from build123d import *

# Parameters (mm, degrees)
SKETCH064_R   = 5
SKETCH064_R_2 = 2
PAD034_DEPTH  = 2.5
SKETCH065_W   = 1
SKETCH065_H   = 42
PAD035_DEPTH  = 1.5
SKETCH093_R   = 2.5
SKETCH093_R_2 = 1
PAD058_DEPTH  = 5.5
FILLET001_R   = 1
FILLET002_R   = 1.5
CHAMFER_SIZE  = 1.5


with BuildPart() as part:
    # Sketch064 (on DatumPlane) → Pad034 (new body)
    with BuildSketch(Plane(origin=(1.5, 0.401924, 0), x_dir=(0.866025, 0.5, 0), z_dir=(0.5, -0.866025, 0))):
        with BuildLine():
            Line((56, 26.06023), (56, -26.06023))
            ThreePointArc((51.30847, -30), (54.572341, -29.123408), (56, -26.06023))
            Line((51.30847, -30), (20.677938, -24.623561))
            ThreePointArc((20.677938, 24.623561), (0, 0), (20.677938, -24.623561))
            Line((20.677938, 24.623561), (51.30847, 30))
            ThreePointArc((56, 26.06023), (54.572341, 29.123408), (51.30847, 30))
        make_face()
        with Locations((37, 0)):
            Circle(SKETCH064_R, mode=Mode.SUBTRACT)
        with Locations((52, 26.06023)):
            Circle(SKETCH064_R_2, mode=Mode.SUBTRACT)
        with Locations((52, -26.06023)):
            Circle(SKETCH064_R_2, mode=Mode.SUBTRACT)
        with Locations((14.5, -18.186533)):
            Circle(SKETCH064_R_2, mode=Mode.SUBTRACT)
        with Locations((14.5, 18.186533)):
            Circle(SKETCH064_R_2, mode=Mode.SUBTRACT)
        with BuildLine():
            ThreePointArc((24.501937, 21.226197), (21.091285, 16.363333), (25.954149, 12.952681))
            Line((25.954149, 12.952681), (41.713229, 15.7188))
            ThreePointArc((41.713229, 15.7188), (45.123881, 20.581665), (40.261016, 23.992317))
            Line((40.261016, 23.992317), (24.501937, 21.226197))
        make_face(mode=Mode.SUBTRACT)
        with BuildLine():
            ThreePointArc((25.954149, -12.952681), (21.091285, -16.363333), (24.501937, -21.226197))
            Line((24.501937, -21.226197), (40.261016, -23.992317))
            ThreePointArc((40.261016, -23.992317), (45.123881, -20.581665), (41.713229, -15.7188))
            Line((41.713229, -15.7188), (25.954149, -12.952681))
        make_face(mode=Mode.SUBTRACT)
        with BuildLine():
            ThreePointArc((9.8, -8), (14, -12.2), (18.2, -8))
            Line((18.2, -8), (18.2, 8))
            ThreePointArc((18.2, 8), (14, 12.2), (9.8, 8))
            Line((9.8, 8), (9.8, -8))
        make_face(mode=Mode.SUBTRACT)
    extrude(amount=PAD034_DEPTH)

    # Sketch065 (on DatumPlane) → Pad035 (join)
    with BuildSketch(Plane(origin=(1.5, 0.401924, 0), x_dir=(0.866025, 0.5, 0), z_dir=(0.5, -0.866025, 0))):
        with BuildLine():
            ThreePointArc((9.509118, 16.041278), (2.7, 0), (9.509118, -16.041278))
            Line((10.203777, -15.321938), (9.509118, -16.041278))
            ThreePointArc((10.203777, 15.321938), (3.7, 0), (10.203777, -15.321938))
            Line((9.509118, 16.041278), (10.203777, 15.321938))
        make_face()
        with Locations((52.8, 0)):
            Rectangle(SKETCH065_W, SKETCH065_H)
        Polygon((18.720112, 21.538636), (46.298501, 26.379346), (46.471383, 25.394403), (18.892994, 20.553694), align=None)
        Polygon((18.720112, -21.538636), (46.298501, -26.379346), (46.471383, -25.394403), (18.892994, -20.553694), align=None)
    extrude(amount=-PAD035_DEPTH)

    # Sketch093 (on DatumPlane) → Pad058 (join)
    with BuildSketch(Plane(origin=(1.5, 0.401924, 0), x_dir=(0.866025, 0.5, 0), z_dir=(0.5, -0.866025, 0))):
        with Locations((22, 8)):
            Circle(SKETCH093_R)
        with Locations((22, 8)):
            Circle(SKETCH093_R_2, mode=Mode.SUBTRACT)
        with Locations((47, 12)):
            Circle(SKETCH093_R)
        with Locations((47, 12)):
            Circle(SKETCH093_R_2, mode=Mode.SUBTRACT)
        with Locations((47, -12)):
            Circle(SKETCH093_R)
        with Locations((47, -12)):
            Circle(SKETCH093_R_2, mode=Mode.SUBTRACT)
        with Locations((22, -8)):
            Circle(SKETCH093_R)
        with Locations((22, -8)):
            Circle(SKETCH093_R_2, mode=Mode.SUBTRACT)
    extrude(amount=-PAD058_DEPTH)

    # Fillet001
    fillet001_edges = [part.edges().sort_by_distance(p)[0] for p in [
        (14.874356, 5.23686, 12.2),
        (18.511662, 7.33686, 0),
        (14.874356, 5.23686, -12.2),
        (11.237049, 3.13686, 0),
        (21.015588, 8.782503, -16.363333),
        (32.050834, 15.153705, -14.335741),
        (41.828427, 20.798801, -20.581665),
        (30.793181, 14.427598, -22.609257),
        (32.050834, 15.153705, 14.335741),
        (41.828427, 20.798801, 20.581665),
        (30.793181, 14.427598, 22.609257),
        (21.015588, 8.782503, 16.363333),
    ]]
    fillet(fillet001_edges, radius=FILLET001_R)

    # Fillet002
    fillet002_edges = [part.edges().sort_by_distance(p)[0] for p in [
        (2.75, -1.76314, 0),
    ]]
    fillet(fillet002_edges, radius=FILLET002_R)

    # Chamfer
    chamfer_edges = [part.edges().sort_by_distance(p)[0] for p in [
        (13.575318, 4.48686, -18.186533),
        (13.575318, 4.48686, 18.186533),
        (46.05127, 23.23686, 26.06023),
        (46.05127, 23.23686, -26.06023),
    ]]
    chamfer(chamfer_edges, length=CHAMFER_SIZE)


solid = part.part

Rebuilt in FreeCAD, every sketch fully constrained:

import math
import FreeCAD as App
import Part
import Sketcher
from FreeCAD import Vector
Q = App.Units.Quantity


def edges_at(feature, points):
    """Names of the edges that pass closest to the given points."""
    edges = feature.Shape.Edges
    near = lambda p: min(range(len(edges)), key=lambda i: edges[i].distToShape(Part.Vertex(*p))[0])
    return sorted({f"Edge{near(p) + 1}" for p in points})

doc = App.newDocument("Part")
body = doc.addObject("PartDesign::Body", "Body")

# Sketch on an angled plane
sketch1 = body.newObject("Sketcher::SketchObject", "Sketch")
sketch1.Placement = App.Placement(Vector(1.5, 0.401924, 0), App.Rotation(Vector(0.866025303, 0.500000175, 0), Vector(0, 0, 1), Vector(0.500000175, -0.866025303, 0), "ZXY"))
sketch1.addGeometry(Part.LineSegment(Vector(56, -26.1, 0), Vector(56, 26.1, 0)), False)
sketch1.addGeometry(Part.ArcOfCircle(Part.Circle(Vector(52, 26.1, 0), Vector(0, 0, 1), 4), math.radians(0), math.radians(100)), False)
sketch1.addGeometry(Part.LineSegment(Vector(51.3, 30, 0), Vector(20.7, 24.6, 0)), False)
sketch1.addGeometry(Part.ArcOfCircle(Part.Circle(Vector(25, 0, 0), Vector(0, 0, 1), 25), math.radians(100), math.radians(260)), False)
sketch1.addGeometry(Part.LineSegment(Vector(20.7, -24.6, 0), Vector(51.3, -30, 0)), False)
sketch1.addGeometry(Part.ArcOfCircle(Part.Circle(Vector(52, -26.1, 0), Vector(0, 0, 1), 4), math.radians(-100), math.radians(0)), False)
sketch1.addGeometry(Part.Circle(Vector(52, -26.1, 0), Vector(0, 0, 1), 2), False)
sketch1.addGeometry(Part.LineSegment(Vector(26, -13, 0), Vector(41.7, -15.7, 0)), False)
sketch1.addGeometry(Part.ArcOfCircle(Part.Circle(Vector(41, -19.9, 0), Vector(0, 0, 1), 4.2), math.radians(-100), math.radians(80)), False)
sketch1.addGeometry(Part.LineSegment(Vector(40.3, -24, 0), Vector(24.5, -21.2, 0)), False)
sketch1.addGeometry(Part.ArcOfCircle(Part.Circle(Vector(25.2, -17.1, 0), Vector(0, 0, 1), 4.2), math.radians(80), math.radians(260)), False)
sketch1.addGeometry(Part.Circle(Vector(14.5, -18.2, 0), Vector(0, 0, 1), 2), False)
sketch1.addGeometry(Part.Circle(Vector(37, 0, 0), Vector(0, 0, 1), 5), False)
sketch1.addGeometry(Part.Circle(Vector(52, 26.1, 0), Vector(0, 0, 1), 2), False)
sketch1.addGeometry(Part.LineSegment(Vector(24.5, 21.2, 0), Vector(40.3, 24, 0)), False)
sketch1.addGeometry(Part.ArcOfCircle(Part.Circle(Vector(41, 19.9, 0), Vector(0, 0, 1), 4.2), math.radians(-80), math.radians(100)), False)
sketch1.addGeometry(Part.LineSegment(Vector(41.7, 15.7, 0), Vector(26, 13, 0)), False)
sketch1.addGeometry(Part.ArcOfCircle(Part.Circle(Vector(25.2, 17.1, 0), Vector(0, 0, 1), 4.2), math.radians(100), math.radians(280)), False)
sketch1.addGeometry(Part.LineSegment(Vector(9.8, -8, 0), Vector(9.8, 8, 0)), False)
sketch1.addGeometry(Part.ArcOfCircle(Part.Circle(Vector(14, 8, 0), Vector(0, 0, 1), 4.2), math.radians(0), math.radians(180)), False)
sketch1.addGeometry(Part.LineSegment(Vector(18.2, 8, 0), Vector(18.2, -8, 0)), False)
sketch1.addGeometry(Part.ArcOfCircle(Part.Circle(Vector(14, -8, 0), Vector(0, 0, 1), 4.2), math.radians(180), math.radians(360)), False)
sketch1.addGeometry(Part.Circle(Vector(14.5, 18.2, 0), Vector(0, 0, 1), 2), False)
sketch1.addConstraint(Sketcher.Constraint("Tangent", 0, 2, 1, 1))
sketch1.addConstraint(Sketcher.Constraint("Tangent", 1, 2, 2, 1))
sketch1.addConstraint(Sketcher.Constraint("Tangent", 2, 2, 3, 1))
sketch1.addConstraint(Sketcher.Constraint("Tangent", 3, 2, 4, 1))
sketch1.addConstraint(Sketcher.Constraint("Tangent", 4, 2, 5, 1))
sketch1.addConstraint(Sketcher.Constraint("Tangent", 5, 2, 0, 1))
sketch1.addConstraint(Sketcher.Constraint("Tangent", 7, 2, 8, 2))
sketch1.addConstraint(Sketcher.Constraint("Tangent", 8, 1, 9, 1))
sketch1.addConstraint(Sketcher.Constraint("Tangent", 9, 2, 10, 2))
sketch1.addConstraint(Sketcher.Constraint("Tangent", 10, 1, 7, 1))
sketch1.addConstraint(Sketcher.Constraint("Tangent", 14, 2, 15, 2))
sketch1.addConstraint(Sketcher.Constraint("Tangent", 15, 1, 16, 1))
sketch1.addConstraint(Sketcher.Constraint("Tangent", 16, 2, 17, 2))
sketch1.addConstraint(Sketcher.Constraint("Tangent", 17, 1, 14, 1))
sketch1.addConstraint(Sketcher.Constraint("Tangent", 18, 2, 19, 2))
sketch1.addConstraint(Sketcher.Constraint("Tangent", 19, 1, 20, 1))
sketch1.addConstraint(Sketcher.Constraint("Tangent", 20, 2, 21, 2))
sketch1.addConstraint(Sketcher.Constraint("Tangent", 21, 1, 18, 1))
sketch1.addConstraint(Sketcher.Constraint("Vertical", 0))
sketch1.addConstraint(Sketcher.Constraint("Vertical", 18))
sketch1.addConstraint(Sketcher.Constraint("Vertical", 20))
sketch1.addConstraint(Sketcher.Constraint("Coincident", 6, 3, 5, 3))
sketch1.addConstraint(Sketcher.Constraint("Coincident", 13, 3, 1, 3))
sketch1.addConstraint(Sketcher.Constraint("Equal", 1, 5))
sketch1.addConstraint(Sketcher.Constraint("Equal", 8, 10))
sketch1.addConstraint(Sketcher.Constraint("Equal", 6, 11))
sketch1.addConstraint(Sketcher.Constraint("Equal", 11, 13))
sketch1.addConstraint(Sketcher.Constraint("Equal", 10, 15))
sketch1.addConstraint(Sketcher.Constraint("Equal", 15, 17))
sketch1.addConstraint(Sketcher.Constraint("Equal", 17, 19))
sketch1.addConstraint(Sketcher.Constraint("Equal", 13, 22))
sketch1.addConstraint(Sketcher.Constraint("Symmetric", 8, 3, 15, 3, -1))
sketch1.addConstraint(Sketcher.Constraint("Symmetric", 10, 3, 17, 3, -1))
sketch1.addConstraint(Sketcher.Constraint("Symmetric", 11, 3, 22, 3, -1))
sketch1.addConstraint(Sketcher.Constraint("Symmetric", 2, 2, 3, 2, -1))
sketch1.addConstraint(Sketcher.Constraint("PointOnObject", 12, 3, -1))
sketch1.addConstraint(Sketcher.Constraint("Parallel", 4, 7))
sketch1.addConstraint(Sketcher.Constraint("Diameter", 6, Q("4 mm")))
sketch1.addConstraint(Sketcher.Constraint("Diameter", 12, Q("10 mm")))
sketch1.addConstraint(Sketcher.Constraint("Radius", 1, Q("4.000001 mm")))
sketch1.addConstraint(Sketcher.Constraint("Radius", 3, Q("24.999999 mm")))
sketch1.addConstraint(Sketcher.Constraint("Radius", 8, Q("4.2 mm")))
sketch1.addConstraint(Sketcher.Constraint("DistanceY", 18, 1, 18, 2, Q("16 mm")))
sketch1.addConstraint(Sketcher.Constraint("Distance", 7, Q("16.000001 mm")))
sketch1.addConstraint(Sketcher.Constraint("DistanceX", -1, 1, 1, 3, Q("51.999999 mm")))
sketch1.addConstraint(Sketcher.Constraint("DistanceX", -1, 1, 3, 3, Q("24.999999 mm")))
sketch1.addConstraint(Sketcher.Constraint("DistanceX", -1, 1, 12, 3, Q("37 mm")))
sketch1.addConstraint(Sketcher.Constraint("DistanceX", -1, 1, 19, 3, Q("14 mm")))
sketch1.addConstraint(Sketcher.Constraint("DistanceY", -1, 1, 19, 3, Q("8 mm")))
sketch1.addConstraint(Sketcher.Constraint("DistanceY", -1, 1, 1, 2, Q("30 mm")))
sketch1.addConstraint(Sketcher.Constraint("DistanceX", -1, 1, 11, 3, Q("14.5 mm")))
sketch1.addConstraint(Sketcher.Constraint("DistanceX", 3, 2, 9, 2, Q("3.823999 mm")))
sketch1.addConstraint(Sketcher.Constraint("DistanceY", 7, 2, -1, 1, Q("15.7188 mm")))
sketch1.addConstraint(Sketcher.Constraint("DistanceY", 22, 3, 2, 2, Q("6.437028 mm")))
pad1 = body.newObject("PartDesign::Pad", "Pad")
pad1.Profile = sketch1
pad1.Length = 2.5

# Sketch on an angled plane
sketch2 = body.newObject("Sketcher::SketchObject", "Sketch001")
sketch2.Placement = App.Placement(Vector(1.5, 0.401924, 0), App.Rotation(Vector(0.866025303, 0.500000175, 0), Vector(0, 0, 1), Vector(0.500000175, -0.866025303, 0), "ZXY"))
sketch2.addGeometry(Part.ArcOfCircle(Part.Circle(Vector(25, 0, 0), Vector(0, 0, 1), 22.3), math.radians(134), math.radians(226)), False)
sketch2.addGeometry(Part.LineSegment(Vector(9.5, -16, 0), Vector(10.2, -15.3, 0)), False)
sketch2.addGeometry(Part.ArcOfCircle(Part.Circle(Vector(25, 0, 0), Vector(0, 0, 1), 21.3), math.radians(134), math.radians(226)), False)
sketch2.addGeometry(Part.LineSegment(Vector(10.2, 15.3, 0), Vector(9.5, 16, 0)), False)
sketch2.addGeometry(Part.LineSegment(Vector(52.3, 21, 0), Vector(52.3, -21, 0)), False)
sketch2.addGeometry(Part.LineSegment(Vector(52.3, -21, 0), Vector(53.3, -21, 0)), False)
sketch2.addGeometry(Part.LineSegment(Vector(53.3, -21, 0), Vector(53.3, 21, 0)), False)
sketch2.addGeometry(Part.LineSegment(Vector(53.3, 21, 0), Vector(52.3, 21, 0)), False)
sketch2.addGeometry(Part.LineSegment(Vector(46.3, 26.4, 0), Vector(18.7, 21.5, 0)), False)
sketch2.addGeometry(Part.LineSegment(Vector(18.7, 21.5, 0), Vector(18.9, 20.6, 0)), False)
sketch2.addGeometry(Part.LineSegment(Vector(18.9, 20.6, 0), Vector(46.5, 25.4, 0)), False)
sketch2.addGeometry(Part.LineSegment(Vector(46.5, 25.4, 0), Vector(46.3, 26.4, 0)), False)
sketch2.addGeometry(Part.LineSegment(Vector(18.7, -21.5, 0), Vector(46.3, -26.4, 0)), False)
sketch2.addGeometry(Part.LineSegment(Vector(46.3, -26.4, 0), Vector(46.5, -25.4, 0)), False)
sketch2.addGeometry(Part.LineSegment(Vector(46.5, -25.4, 0), Vector(18.9, -20.6, 0)), False)
sketch2.addGeometry(Part.LineSegment(Vector(18.9, -20.6, 0), Vector(18.7, -21.5, 0)), False)
sketch2.addConstraint(Sketcher.Constraint("Coincident", 0, 2, 1, 1))
sketch2.addConstraint(Sketcher.Constraint("Coincident", 1, 2, 2, 2))
sketch2.addConstraint(Sketcher.Constraint("Coincident", 2, 1, 3, 1))
sketch2.addConstraint(Sketcher.Constraint("Coincident", 3, 2, 0, 1))
sketch2.addConstraint(Sketcher.Constraint("Coincident", 4, 2, 5, 1))
sketch2.addConstraint(Sketcher.Constraint("Coincident", 5, 2, 6, 1))
sketch2.addConstraint(Sketcher.Constraint("Coincident", 6, 2, 7, 1))
sketch2.addConstraint(Sketcher.Constraint("Coincident", 7, 2, 4, 1))
sketch2.addConstraint(Sketcher.Constraint("Coincident", 8, 2, 9, 1))
sketch2.addConstraint(Sketcher.Constraint("Coincident", 9, 2, 10, 1))
sketch2.addConstraint(Sketcher.Constraint("Coincident", 10, 2, 11, 1))
sketch2.addConstraint(Sketcher.Constraint("Coincident", 11, 2, 8, 1))
sketch2.addConstraint(Sketcher.Constraint("Coincident", 12, 2, 13, 1))
sketch2.addConstraint(Sketcher.Constraint("Coincident", 13, 2, 14, 1))
sketch2.addConstraint(Sketcher.Constraint("Coincident", 14, 2, 15, 1))
sketch2.addConstraint(Sketcher.Constraint("Coincident", 15, 2, 12, 1))
sketch2.addConstraint(Sketcher.Constraint("Vertical", 4))
sketch2.addConstraint(Sketcher.Constraint("Horizontal", 5))
sketch2.addConstraint(Sketcher.Constraint("Vertical", 6))
sketch2.addConstraint(Sketcher.Constraint("Horizontal", 7))
sketch2.addConstraint(Sketcher.Constraint("Coincident", 2, 3, 0, 3))
sketch2.addConstraint(Sketcher.Constraint("Symmetric", 1, 2, 2, 1, -1))
sketch2.addConstraint(Sketcher.Constraint("Symmetric", 11, 2, 12, 2, -1))
sketch2.addConstraint(Sketcher.Constraint("Symmetric", 10, 2, 13, 2, -1))
sketch2.addConstraint(Sketcher.Constraint("Symmetric", 9, 2, 14, 2, -1))
sketch2.addConstraint(Sketcher.Constraint("Symmetric", 8, 2, 15, 2, -1))
sketch2.addConstraint(Sketcher.Constraint("Perpendicular", 8, 9))
sketch2.addConstraint(Sketcher.Constraint("Perpendicular", 9, 10))
sketch2.addConstraint(Sketcher.Constraint("Perpendicular", 10, 11))
sketch2.addConstraint(Sketcher.Constraint("Vertical", 0, 2, 3, 2))
sketch2.addConstraint(Sketcher.Constraint("Equal", 3, 9))
sketch2.addConstraint(Sketcher.Constraint("Radius", 0, Q("22.300002 mm")))
sketch2.addConstraint(Sketcher.Constraint("Radius", 2, Q("21.3 mm")))
sketch2.addConstraint(Sketcher.Constraint("DistanceX", 5, 1, 5, 2, Q("1 mm")))
sketch2.addConstraint(Sketcher.Constraint("DistanceY", 4, 2, 4, 1, Q("42 mm")))
sketch2.addConstraint(Sketcher.Constraint("Angle", 1, Q("45.999982 deg")))
sketch2.addConstraint(Sketcher.Constraint("Distance", 8, Q("28 mm")))
sketch2.addConstraint(Sketcher.Constraint("DistanceX", -1, 1, 0, 3, Q("25.000002 mm")))
sketch2.addConstraint(Sketcher.Constraint("DistanceY", 4, 2, -1, 1, Q("21 mm")))
sketch2.addConstraint(Sketcher.Constraint("DistanceX", -1, 1, 4, 2, Q("52.3 mm")))
sketch2.addConstraint(Sketcher.Constraint("DistanceX", -1, 1, 11, 2, Q("46.298501 mm")))
sketch2.addConstraint(Sketcher.Constraint("DistanceY", 2, 1, 8, 2, Q("6.216698 mm")))
sketch2.addConstraint(Sketcher.Constraint("DistanceX", -1, 1, 0, 2, Q("9.509118 mm")))
sketch2.addConstraint(Sketcher.Constraint("DistanceX", 8, 2, 0, 3, Q("6.27989 mm")))
pad2 = body.newObject("PartDesign::Pad", "Pad001")
pad2.Profile = sketch2
pad2.Length = 1.5
pad2.Reversed = True

# Sketch on an angled plane
sketch3 = body.newObject("Sketcher::SketchObject", "Sketch002")
sketch3.Placement = App.Placement(Vector(1.5, 0.401924, 0), App.Rotation(Vector(0.866025303, 0.500000175, 0), Vector(0, 0, 1), Vector(0.500000175, -0.866025303, 0), "ZXY"))
sketch3.addGeometry(Part.Circle(Vector(22, 8, 0), Vector(0, 0, 1), 2.5), False)
sketch3.addGeometry(Part.Circle(Vector(22, 8, 0), Vector(0, 0, 1), 1), False)
sketch3.addGeometry(Part.Circle(Vector(47, 12, 0), Vector(0, 0, 1), 2.5), False)
sketch3.addGeometry(Part.Circle(Vector(47, 12, 0), Vector(0, 0, 1), 1), False)
sketch3.addGeometry(Part.Circle(Vector(47, -12, 0), Vector(0, 0, 1), 2.5), False)
sketch3.addGeometry(Part.Circle(Vector(47, -12, 0), Vector(0, 0, 1), 1), False)
sketch3.addGeometry(Part.Circle(Vector(22, -8, 0), Vector(0, 0, 1), 2.5), False)
sketch3.addGeometry(Part.Circle(Vector(22, -8, 0), Vector(0, 0, 1), 1), False)
sketch3.addConstraint(Sketcher.Constraint("Coincident", 1, 3, 0, 3))
sketch3.addConstraint(Sketcher.Constraint("Coincident", 3, 3, 2, 3))
sketch3.addConstraint(Sketcher.Constraint("Coincident", 5, 3, 4, 3))
sketch3.addConstraint(Sketcher.Constraint("Coincident", 7, 3, 6, 3))
sketch3.addConstraint(Sketcher.Constraint("Equal", 0, 2))
sketch3.addConstraint(Sketcher.Constraint("Equal", 1, 3))
sketch3.addConstraint(Sketcher.Constraint("Equal", 2, 4))
sketch3.addConstraint(Sketcher.Constraint("Equal", 3, 5))
sketch3.addConstraint(Sketcher.Constraint("Equal", 4, 6))
sketch3.addConstraint(Sketcher.Constraint("Equal", 5, 7))
sketch3.addConstraint(Sketcher.Constraint("Symmetric", 2, 3, 4, 3, -1))
sketch3.addConstraint(Sketcher.Constraint("Symmetric", 0, 3, 6, 3, -1))
sketch3.addConstraint(Sketcher.Constraint("Diameter", 0, Q("5 mm")))
sketch3.addConstraint(Sketcher.Constraint("Diameter", 1, Q("2 mm")))
sketch3.addConstraint(Sketcher.Constraint("DistanceX", -1, 1, 0, 3, Q("22 mm")))
sketch3.addConstraint(Sketcher.Constraint("DistanceY", -1, 1, 0, 3, Q("8 mm")))
sketch3.addConstraint(Sketcher.Constraint("DistanceX", -1, 1, 2, 3, Q("47 mm")))
sketch3.addConstraint(Sketcher.Constraint("DistanceY", -1, 1, 2, 3, Q("12 mm")))
pad3 = body.newObject("PartDesign::Pad", "Pad002")
pad3.Profile = sketch3
pad3.Length = 5.5
pad3.Reversed = True
doc.recompute()

fillet = body.newObject("PartDesign::Fillet", "Fillet")
fillet.Base = (pad3, edges_at(pad3, [
    (14.874, 5.237, 12.2),
    (18.512, 7.337, 0),
    (14.874, 5.237, -12.2),
    (11.237, 3.137, 0),
    (21.016, 8.783, -16.363),
    (32.051, 15.154, -14.336),
    (41.828, 20.799, -20.582),
    (30.793, 14.428, -22.609),
    (32.051, 15.154, 14.336),
    (41.828, 20.799, 20.582),
    (30.793, 14.428, 22.609),
    (21.016, 8.783, 16.363),
]))
fillet.Radius = 1
doc.recompute()

fillet2 = body.newObject("PartDesign::Fillet", "Fillet001")
fillet2.Base = (fillet, edges_at(fillet, [(2.75, -1.763, 0)]))
fillet2.Radius = 1.5
doc.recompute()

chamfer = body.newObject("PartDesign::Chamfer", "Chamfer")
chamfer.Base = (fillet2, edges_at(fillet2, [
    (13.575, 4.487, -18.187),
    (13.575, 4.487, 18.187),
    (46.051, 23.237, 26.06),
    (46.051, 23.237, -26.06),
]))
chamfer.Size = 1.5

doc.recompute()
